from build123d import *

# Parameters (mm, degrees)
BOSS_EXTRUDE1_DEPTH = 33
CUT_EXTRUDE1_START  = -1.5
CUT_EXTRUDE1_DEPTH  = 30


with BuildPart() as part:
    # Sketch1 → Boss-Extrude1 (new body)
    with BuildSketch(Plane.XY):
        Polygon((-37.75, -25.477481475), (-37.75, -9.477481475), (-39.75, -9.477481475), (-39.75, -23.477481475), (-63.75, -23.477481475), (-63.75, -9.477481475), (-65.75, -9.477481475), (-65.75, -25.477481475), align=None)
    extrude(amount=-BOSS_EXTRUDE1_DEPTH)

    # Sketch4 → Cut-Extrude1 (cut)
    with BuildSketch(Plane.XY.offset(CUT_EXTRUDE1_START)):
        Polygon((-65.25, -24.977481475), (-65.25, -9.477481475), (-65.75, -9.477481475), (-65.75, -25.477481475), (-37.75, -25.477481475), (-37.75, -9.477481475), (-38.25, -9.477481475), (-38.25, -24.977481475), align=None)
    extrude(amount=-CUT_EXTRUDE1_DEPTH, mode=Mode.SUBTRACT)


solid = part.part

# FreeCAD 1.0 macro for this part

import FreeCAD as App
import Part
import Sketcher
Q = App.Units.Quantity


def add_polygon(sketch, points):
    """Adds a closed chain of lines whose ends are joined by coincident constraints."""
    first, n = sketch.GeometryCount, len(points)
    for a, b in zip(points, points[1:] + points[:1]):
        sketch.addGeometry(Part.LineSegment(App.Vector(*a, 0), App.Vector(*b, 0)), False)
    for i in range(n):
        sketch.addConstraint(Sketcher.Constraint("Coincident", first + i, 2, first + (i + 1) % n, 1))

doc = App.newDocument("Part")
body = doc.addObject("PartDesign::Body", "Body")

# Sketch on XY plane
sketch1 = body.newObject("Sketcher::SketchObject", "Sketch")
sketch1.AttachmentSupport = (doc.getObject("XY_Plane"), [""])
sketch1.MapMode = "FlatFace"
add_polygon(sketch1, [(-37.8, -25.5), (-37.8, -9.5), (-39.8, -9.5), (-39.8, -23.5), (-63.8, -23.5), (-63.8, -9.5), (-65.8, -9.5), (-65.8, -25.5)])  # lines 0-7
sketch1.addConstraint(Sketcher.Constraint("Vertical", 0))
sketch1.addConstraint(Sketcher.Constraint("Horizontal", 1))
sketch1.addConstraint(Sketcher.Constraint("Vertical", 2))
sketch1.addConstraint(Sketcher.Constraint("Horizontal", 3))
sketch1.addConstraint(Sketcher.Constraint("Vertical", 4))
sketch1.addConstraint(Sketcher.Constraint("Horizontal", 5))
sketch1.addConstraint(Sketcher.Constraint("Vertical", 6))
sketch1.addConstraint(Sketcher.Constraint("Horizontal", 7))
sketch1.addConstraint(Sketcher.Constraint("Horizontal", 1, 2, 4, 2))
sketch1.addConstraint(Sketcher.Constraint("Equal", 1, 5))
sketch1.addConstraint(Sketcher.Constraint("DistanceX", 1, 2, 1, 1, Q("2 mm")))
sketch1.addConstraint(Sketcher.Constraint("DistanceX", 3, 2, 3, 1, Q("24 mm")))
sketch1.addConstraint(Sketcher.Constraint("DistanceY", 0, 1, 0, 2, Q("16 mm")))
sketch1.addConstraint(Sketcher.Constraint("DistanceY", 2, 2, 2, 1, Q("14 mm")))
sketch1.addConstraint(Sketcher.Constraint("DistanceX", 0, 2, -1, 1, Q("37.75 mm")))
sketch1.addConstraint(Sketcher.Constraint("DistanceY", 0, 2, -1, 1, Q("9.477481 mm")))
pad1 = body.newObject("PartDesign::Pad", "Pad")
pad1.Profile = sketch1
pad1.Length = 33
pad1.Reversed = True

# Sketch on XY plane
sketch2 = body.newObject("Sketcher::SketchObject", "Sketch001")
sketch2.AttachmentSupport = (doc.getObject("XY_Plane"), [""])
sketch2.MapMode = "FlatFace"
sketch2.AttachmentOffset = App.Placement(App.Vector(0, 0, -1.5), App.Rotation())
add_polygon(sketch2, [(-65.2, -25), (-65.2, -9.5), (-65.8, -9.5), (-65.8, -25.5), (-37.8, -25.5), (-37.8, -9.5), (-38.2, -9.5), (-38.2, -25)])  # lines 0-7
sketch2.addConstraint(Sketcher.Constraint("Vertical", 0))
sketch2.addConstraint(Sketcher.Constraint("Horizontal", 1))
sketch2.addConstraint(Sketcher.Constraint("Vertical", 2))
sketch2.addConstraint(Sketcher.Constraint("Horizontal", 3))
sketch2.addConstraint(Sketcher.Constraint("Vertical", 4))
sketch2.addConstraint(Sketcher.Constraint("Horizontal", 5))
sketch2.addConstraint(Sketcher.Constraint("Vertical", 6))
sketch2.addConstraint(Sketcher.Constraint("Horizontal", 7))
sketch2.addConstraint(Sketcher.Constraint("Horizontal", 1, 2, 4, 2))
sketch2.addConstraint(Sketcher.Constraint("Equal", 1, 5))
sketch2.addConstraint(Sketcher.Constraint("DistanceX", 3, 1, 3, 2, Q("28 mm")))
sketch2.addConstraint(Sketcher.Constraint("DistanceX", 7, 2, 7, 1, Q("27 mm")))
sketch2.addConstraint(Sketcher.Constraint("DistanceY", 2, 2, 2, 1, Q("16 mm")))
sketch2.addConstraint(Sketcher.Constraint("DistanceY", 0, 1, 0, 2, Q("15.5 mm")))
sketch2.addConstraint(Sketcher.Constraint("DistanceX", 0, 2, -1, 1, Q("65.25 mm")))
sketch2.addConstraint(Sketcher.Constraint("DistanceY", 0, 2, -1, 1, Q("9.477481 mm")))
pocket1 = body.newObject("PartDesign::Pocket", "Pocket")
pocket1.Profile = sketch2
pocket1.Length = 30

doc.recompute()
